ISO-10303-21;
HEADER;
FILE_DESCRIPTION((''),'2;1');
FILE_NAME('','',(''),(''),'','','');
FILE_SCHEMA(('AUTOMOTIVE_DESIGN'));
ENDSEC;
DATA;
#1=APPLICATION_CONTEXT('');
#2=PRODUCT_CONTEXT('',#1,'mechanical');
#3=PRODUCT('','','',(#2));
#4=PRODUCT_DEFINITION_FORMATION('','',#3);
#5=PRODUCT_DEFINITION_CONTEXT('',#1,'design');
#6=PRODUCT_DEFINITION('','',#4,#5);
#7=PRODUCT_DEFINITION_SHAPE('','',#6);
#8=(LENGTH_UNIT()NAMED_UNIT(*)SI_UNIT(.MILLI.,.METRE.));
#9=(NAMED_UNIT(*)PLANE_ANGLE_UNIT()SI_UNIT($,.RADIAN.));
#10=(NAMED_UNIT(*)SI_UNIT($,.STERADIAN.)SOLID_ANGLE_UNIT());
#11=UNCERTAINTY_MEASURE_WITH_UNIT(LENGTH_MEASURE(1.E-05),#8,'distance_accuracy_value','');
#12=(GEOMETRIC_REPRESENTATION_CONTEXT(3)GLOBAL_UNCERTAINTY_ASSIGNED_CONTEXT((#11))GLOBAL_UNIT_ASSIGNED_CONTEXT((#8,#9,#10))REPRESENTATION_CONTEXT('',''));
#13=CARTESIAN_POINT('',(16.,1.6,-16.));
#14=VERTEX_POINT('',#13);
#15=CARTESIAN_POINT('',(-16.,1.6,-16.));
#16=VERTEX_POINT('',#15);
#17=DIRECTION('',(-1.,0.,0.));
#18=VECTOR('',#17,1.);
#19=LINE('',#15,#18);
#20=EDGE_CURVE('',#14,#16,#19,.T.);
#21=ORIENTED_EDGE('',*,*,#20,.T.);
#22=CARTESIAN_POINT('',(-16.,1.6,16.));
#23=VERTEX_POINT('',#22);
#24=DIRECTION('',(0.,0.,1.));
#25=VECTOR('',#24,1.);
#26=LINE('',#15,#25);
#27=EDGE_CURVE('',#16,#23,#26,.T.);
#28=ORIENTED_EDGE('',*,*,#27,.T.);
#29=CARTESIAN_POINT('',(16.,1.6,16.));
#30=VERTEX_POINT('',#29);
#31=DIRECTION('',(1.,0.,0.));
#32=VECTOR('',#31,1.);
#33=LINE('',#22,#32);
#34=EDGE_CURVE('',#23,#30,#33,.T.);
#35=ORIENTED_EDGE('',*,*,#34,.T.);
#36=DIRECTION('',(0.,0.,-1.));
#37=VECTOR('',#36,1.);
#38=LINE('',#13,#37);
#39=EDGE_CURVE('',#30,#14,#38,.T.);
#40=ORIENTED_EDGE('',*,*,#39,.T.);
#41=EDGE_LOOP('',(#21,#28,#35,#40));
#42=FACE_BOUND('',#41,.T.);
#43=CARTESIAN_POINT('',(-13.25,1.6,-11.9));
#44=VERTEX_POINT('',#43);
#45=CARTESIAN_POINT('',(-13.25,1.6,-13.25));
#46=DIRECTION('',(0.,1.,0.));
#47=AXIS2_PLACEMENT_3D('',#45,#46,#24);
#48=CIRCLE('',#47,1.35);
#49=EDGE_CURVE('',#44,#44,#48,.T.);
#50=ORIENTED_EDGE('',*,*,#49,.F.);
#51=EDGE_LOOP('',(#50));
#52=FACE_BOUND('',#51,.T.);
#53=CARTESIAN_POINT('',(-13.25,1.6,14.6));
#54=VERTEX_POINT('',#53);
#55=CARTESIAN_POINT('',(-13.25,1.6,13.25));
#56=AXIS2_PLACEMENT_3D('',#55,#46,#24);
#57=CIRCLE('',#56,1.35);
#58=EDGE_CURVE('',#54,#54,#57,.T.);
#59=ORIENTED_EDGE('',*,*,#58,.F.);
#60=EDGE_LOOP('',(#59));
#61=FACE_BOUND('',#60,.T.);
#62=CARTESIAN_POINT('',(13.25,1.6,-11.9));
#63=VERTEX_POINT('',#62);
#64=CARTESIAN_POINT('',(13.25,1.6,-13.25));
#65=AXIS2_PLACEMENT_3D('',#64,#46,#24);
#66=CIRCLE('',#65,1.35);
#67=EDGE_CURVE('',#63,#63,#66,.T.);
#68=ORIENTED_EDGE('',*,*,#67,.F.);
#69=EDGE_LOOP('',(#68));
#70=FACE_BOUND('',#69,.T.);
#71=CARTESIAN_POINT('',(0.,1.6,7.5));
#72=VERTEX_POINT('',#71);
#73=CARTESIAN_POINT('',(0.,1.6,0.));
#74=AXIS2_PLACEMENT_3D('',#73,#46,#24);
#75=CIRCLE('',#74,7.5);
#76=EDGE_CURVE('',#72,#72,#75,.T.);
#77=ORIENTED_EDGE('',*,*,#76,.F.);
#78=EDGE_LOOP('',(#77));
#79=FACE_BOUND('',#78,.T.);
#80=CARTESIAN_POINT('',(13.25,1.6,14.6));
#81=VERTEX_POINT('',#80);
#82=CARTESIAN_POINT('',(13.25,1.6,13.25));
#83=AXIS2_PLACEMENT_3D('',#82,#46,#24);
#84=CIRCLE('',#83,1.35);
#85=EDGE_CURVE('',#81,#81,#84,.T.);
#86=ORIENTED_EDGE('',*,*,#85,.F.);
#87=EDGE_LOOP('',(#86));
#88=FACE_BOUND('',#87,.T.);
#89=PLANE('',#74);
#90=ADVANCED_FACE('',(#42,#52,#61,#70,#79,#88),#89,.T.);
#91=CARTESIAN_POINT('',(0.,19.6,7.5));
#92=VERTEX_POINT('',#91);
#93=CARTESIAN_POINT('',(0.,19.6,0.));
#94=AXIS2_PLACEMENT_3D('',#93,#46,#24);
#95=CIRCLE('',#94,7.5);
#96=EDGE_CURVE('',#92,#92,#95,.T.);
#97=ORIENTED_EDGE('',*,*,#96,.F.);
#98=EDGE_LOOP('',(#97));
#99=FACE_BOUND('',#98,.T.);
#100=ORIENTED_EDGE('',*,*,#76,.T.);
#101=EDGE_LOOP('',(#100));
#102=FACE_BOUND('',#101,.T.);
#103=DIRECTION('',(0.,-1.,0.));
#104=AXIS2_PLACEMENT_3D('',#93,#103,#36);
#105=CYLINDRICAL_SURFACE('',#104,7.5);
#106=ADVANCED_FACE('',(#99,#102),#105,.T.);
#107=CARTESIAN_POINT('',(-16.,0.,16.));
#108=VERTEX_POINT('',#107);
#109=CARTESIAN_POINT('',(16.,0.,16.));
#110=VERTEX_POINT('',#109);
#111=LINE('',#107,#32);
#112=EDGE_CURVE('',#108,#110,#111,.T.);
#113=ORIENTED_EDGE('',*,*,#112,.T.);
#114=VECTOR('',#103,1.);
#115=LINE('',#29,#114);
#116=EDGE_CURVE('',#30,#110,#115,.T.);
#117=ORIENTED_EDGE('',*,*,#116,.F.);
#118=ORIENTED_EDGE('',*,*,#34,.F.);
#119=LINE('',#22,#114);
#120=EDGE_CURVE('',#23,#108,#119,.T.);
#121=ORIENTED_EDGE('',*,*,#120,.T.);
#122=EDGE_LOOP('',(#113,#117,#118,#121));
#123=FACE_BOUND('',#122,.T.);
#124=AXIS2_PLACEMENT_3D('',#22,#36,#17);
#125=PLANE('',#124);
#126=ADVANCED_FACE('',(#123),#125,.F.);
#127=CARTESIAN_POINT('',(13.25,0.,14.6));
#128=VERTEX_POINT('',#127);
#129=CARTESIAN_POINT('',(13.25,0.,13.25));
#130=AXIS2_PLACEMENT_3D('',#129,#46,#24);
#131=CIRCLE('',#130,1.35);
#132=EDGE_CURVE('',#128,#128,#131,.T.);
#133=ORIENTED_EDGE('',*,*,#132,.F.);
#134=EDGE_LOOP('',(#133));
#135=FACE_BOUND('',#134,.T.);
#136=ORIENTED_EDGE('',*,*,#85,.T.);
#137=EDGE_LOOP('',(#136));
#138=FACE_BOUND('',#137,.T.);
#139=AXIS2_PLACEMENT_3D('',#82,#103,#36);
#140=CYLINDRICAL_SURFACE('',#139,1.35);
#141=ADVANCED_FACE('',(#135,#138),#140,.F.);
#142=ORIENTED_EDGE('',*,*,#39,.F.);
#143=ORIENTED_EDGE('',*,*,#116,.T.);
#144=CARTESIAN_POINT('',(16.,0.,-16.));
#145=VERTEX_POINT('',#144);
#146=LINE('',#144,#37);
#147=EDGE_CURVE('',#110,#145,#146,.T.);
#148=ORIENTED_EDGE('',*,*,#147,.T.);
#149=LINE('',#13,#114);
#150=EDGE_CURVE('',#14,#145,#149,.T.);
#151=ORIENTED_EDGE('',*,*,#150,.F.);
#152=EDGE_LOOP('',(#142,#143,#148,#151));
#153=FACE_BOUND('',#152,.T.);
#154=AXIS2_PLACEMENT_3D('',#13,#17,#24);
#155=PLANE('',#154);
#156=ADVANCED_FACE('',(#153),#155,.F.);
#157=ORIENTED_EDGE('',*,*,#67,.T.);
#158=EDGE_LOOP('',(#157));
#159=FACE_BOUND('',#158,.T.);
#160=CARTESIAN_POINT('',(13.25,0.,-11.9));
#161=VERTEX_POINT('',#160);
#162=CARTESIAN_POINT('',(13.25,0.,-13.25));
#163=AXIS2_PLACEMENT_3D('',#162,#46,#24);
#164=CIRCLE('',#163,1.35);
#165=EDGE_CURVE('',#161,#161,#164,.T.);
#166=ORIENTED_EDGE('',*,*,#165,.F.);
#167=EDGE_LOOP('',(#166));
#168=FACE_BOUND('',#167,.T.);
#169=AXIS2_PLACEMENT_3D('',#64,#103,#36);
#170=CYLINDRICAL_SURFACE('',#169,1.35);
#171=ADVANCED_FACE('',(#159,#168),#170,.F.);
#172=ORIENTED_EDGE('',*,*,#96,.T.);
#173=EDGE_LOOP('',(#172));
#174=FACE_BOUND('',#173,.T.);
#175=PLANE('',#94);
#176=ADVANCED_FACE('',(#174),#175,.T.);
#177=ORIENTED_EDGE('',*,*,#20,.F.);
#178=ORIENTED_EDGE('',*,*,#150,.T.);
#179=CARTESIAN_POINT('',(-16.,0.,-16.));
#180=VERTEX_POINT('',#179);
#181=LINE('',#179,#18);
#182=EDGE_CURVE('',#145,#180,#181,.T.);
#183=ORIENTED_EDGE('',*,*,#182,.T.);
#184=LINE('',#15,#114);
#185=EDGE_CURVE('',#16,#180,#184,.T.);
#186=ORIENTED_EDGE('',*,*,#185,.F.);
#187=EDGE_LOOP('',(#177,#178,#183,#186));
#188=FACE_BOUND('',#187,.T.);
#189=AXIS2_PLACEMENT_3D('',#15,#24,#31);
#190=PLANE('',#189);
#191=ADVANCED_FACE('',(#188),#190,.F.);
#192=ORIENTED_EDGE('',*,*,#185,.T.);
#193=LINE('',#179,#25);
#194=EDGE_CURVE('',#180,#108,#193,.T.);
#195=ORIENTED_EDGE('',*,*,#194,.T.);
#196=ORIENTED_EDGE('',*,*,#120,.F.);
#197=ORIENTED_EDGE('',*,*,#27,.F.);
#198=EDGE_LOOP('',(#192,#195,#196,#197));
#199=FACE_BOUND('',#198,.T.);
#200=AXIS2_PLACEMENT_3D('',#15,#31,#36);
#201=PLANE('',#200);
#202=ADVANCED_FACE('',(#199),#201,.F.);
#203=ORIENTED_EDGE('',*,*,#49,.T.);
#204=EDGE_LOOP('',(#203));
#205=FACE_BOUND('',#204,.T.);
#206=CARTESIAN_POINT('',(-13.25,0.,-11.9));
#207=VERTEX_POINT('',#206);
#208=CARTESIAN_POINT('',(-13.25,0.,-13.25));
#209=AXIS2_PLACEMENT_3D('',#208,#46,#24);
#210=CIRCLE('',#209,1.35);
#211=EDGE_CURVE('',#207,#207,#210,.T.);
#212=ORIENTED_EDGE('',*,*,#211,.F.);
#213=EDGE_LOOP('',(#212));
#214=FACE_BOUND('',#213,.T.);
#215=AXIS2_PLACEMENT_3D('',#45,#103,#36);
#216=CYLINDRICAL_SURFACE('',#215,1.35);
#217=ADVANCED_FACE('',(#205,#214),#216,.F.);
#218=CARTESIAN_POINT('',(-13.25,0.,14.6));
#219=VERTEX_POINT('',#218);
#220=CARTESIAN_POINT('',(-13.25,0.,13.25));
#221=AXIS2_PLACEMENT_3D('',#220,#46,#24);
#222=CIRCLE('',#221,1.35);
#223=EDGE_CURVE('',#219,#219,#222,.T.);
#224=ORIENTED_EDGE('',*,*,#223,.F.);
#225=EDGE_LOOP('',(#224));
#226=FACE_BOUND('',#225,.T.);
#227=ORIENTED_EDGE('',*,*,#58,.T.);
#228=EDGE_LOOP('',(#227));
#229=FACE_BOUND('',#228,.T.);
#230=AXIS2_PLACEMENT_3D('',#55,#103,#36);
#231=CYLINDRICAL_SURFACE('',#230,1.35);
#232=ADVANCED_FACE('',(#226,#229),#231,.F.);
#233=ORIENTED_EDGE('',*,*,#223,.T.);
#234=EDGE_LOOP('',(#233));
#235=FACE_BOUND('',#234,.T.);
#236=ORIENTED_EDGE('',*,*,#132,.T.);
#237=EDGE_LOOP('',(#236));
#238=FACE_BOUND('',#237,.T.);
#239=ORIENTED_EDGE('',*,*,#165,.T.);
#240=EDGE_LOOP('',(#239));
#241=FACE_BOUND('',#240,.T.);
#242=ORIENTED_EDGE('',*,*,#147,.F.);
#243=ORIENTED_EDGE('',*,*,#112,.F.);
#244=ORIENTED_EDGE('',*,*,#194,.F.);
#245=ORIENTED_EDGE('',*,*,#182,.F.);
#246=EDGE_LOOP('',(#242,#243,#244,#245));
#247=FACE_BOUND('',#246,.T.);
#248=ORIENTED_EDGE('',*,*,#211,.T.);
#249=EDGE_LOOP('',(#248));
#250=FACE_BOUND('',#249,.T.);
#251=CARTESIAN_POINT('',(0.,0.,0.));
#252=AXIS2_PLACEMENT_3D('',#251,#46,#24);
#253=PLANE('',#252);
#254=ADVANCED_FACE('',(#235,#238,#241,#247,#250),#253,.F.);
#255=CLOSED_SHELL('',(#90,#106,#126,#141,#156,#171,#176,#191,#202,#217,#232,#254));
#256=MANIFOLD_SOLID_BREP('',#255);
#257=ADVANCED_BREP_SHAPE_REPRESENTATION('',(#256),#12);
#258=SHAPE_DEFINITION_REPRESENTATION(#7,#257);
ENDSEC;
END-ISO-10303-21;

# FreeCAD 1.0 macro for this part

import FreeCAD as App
import Part
import Sketcher


def add_polygon(sketch, points):
    """Adds a closed chain of lines whose ends are joined by coincident constraints."""
    first, n = sketch.GeometryCount, len(points)
    for a, b in zip(points, points[1:] + points[:1]):
        sketch.addGeometry(Part.LineSegment(App.Vector(*a, 0), App.Vector(*b, 0)), False)
    for i in range(n):
        sketch.addConstraint(Sketcher.Constraint("Coincident", first + i, 2, first + (i + 1) % n, 1))

doc = App.newDocument("Part")
body = doc.addObject("PartDesign::Body", "Body")

# Sketch on XZ plane
sketch1 = body.newObject("Sketcher::SketchObject", "Sketch")
sketch1.AttachmentSupport = (doc.getObject("XZ_Plane"), [""])
sketch1.MapMode = "FlatFace"
add_polygon(sketch1, [(-16, -16), (-16, 16), (16, 16), (16, -16)])  # lines 0-3
sketch1.addGeometry(Part.Circle(App.Vector(-13.25, 13.25, 0), App.Vector(0, 0, 1), 1.35), False)  # 4
sketch1.addGeometry(Part.Circle(App.Vector(13.25, 13.25, 0), App.Vector(0, 0, 1), 1.35), False)  # 5
sketch1.addGeometry(Part.Circle(App.Vector(-13.25, -13.25, 0), App.Vector(0, 0, 1), 1.35), False)  # 6
sketch1.addGeometry(Part.Circle(App.Vector(13.25, -13.25, 0), App.Vector(0, 0, 1), 1.35), False)  # 7
sketch1.addConstraint([
    Sketcher.Constraint("Vertical", 0),
    Sketcher.Constraint("Horizontal", 1),
    Sketcher.Constraint("Vertical", 2),
    Sketcher.Constraint("Horizontal", 3),
    Sketcher.Constraint("Equal", 4, 5),
    Sketcher.Constraint("Equal", 5, 6),
    Sketcher.Constraint("Equal", 6, 7),
    Sketcher.Constraint("Symmetric", 5, 3, 6, 3, -1, 1),
    Sketcher.Constraint("Symmetric", 4, 3, 7, 3, -1, 1),
    Sketcher.Constraint("Symmetric", 0, 2, 2, 2, -1, 1),
    Sketcher.Constraint("Symmetric", 4, 3, 5, 3, -2),
    Sketcher.Constraint("Equal", 3, 0),
    Sketcher.Constraint("Diameter", 4, 2.7),
    Sketcher.Constraint("DistanceX", 1, 1, 1, 2, 32.0),
    Sketcher.Constraint("DistanceX", 4, 3, 5, 3, 26.5),
    Sketcher.Constraint("DistanceY", 6, 3, 4, 3, 26.5),
])
pad1 = body.newObject("PartDesign::Pad", "Pad")
pad1.Profile = sketch1
pad1.Length = 1.6
pad1.Reversed = True

# Sketch on XZ plane
sketch2 = body.newObject("Sketcher::SketchObject", "Sketch001")
sketch2.AttachmentSupport = (doc.getObject("XZ_Plane"), [""])
sketch2.MapMode = "FlatFace"
sketch2.AttachmentOffset = App.Placement(App.Vector(0, 0, -1.6), App.Rotation())
sketch2.addGeometry(Part.Circle(App.Vector(0, 0, 0), App.Vector(0, 0, 1), 7.5), False)
sketch2.addConstraint([
    Sketcher.Constraint("Coincident", 0, 3, -1, 1),
    Sketcher.Constraint("Diameter", 0, 15.0),
])
pad2 = body.newObject("PartDesign::Pad", "Pad001")
pad2.Profile = sketch2
pad2.Length = 18
pad2.Reversed = True

doc.recompute()
